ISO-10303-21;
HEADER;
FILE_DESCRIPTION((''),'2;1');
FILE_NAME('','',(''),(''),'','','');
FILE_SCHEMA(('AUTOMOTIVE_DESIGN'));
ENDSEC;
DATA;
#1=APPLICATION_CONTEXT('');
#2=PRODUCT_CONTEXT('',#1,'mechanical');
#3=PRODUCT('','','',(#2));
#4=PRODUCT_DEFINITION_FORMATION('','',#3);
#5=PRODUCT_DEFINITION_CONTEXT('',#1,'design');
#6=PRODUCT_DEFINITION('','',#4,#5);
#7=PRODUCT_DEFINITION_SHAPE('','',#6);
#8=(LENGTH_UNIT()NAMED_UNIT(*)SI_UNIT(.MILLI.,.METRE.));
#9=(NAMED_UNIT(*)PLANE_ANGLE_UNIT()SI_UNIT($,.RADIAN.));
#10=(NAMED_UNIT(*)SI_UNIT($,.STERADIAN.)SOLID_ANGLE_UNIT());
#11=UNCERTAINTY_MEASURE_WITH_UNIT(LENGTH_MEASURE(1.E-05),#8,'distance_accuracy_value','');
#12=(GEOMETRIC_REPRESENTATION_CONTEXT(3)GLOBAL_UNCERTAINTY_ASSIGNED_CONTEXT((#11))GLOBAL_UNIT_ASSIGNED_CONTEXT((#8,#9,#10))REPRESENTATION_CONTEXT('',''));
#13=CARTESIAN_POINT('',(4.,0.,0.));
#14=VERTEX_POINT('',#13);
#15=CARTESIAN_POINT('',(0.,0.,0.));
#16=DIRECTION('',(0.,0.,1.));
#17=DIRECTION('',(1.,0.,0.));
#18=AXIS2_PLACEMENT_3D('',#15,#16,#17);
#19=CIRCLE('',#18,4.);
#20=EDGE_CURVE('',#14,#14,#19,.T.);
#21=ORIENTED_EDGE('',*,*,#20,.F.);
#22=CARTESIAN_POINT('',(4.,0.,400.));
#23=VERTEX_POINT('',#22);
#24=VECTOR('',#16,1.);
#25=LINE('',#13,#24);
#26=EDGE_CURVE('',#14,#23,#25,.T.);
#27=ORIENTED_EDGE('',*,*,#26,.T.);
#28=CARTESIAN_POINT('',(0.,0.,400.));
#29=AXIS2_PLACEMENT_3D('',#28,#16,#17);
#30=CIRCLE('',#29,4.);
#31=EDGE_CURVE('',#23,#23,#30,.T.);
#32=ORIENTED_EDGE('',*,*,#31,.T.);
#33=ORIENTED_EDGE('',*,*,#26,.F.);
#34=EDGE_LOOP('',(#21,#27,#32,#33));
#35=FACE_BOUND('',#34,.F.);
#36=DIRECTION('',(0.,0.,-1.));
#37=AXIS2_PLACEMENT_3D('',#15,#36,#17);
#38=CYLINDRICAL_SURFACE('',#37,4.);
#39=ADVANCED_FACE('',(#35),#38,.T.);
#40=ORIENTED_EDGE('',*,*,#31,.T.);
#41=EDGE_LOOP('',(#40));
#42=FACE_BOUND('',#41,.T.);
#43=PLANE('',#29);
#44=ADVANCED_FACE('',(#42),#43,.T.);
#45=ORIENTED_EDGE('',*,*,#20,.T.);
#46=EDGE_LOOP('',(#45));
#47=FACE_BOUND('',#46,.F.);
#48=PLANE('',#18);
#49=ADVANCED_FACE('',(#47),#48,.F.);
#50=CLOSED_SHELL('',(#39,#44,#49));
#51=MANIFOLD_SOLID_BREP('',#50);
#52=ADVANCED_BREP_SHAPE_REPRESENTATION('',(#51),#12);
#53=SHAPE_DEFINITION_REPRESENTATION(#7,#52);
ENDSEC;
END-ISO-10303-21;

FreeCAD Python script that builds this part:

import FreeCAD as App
import Part
import Sketcher
from FreeCAD import Vector
Q = App.Units.Quantity

doc = App.newDocument("Part")
body = doc.addObject("PartDesign::Body", "Body")

# Sketch on XY plane
sketch1 = body.newObject("Sketcher::SketchObject", "Sketch")
sketch1.AttachmentSupport = (doc.getObject("XY_Plane"), [""])
sketch1.MapMode = "FlatFace"
sketch1.addGeometry(Part.Circle(Vector(0, 0, 0), Vector(0, 0, 1), 4), False)
sketch1.addConstraint([
    Sketcher.Constraint("Coincident", 0, 3, -1, 1),
    Sketcher.Constraint("Diameter", 0, Q("8 mm")),
])
pad1 = body.newObject("PartDesign::Pad", "Pad")
pad1.Profile = sketch1
pad1.Length = 400

doc.recompute()
